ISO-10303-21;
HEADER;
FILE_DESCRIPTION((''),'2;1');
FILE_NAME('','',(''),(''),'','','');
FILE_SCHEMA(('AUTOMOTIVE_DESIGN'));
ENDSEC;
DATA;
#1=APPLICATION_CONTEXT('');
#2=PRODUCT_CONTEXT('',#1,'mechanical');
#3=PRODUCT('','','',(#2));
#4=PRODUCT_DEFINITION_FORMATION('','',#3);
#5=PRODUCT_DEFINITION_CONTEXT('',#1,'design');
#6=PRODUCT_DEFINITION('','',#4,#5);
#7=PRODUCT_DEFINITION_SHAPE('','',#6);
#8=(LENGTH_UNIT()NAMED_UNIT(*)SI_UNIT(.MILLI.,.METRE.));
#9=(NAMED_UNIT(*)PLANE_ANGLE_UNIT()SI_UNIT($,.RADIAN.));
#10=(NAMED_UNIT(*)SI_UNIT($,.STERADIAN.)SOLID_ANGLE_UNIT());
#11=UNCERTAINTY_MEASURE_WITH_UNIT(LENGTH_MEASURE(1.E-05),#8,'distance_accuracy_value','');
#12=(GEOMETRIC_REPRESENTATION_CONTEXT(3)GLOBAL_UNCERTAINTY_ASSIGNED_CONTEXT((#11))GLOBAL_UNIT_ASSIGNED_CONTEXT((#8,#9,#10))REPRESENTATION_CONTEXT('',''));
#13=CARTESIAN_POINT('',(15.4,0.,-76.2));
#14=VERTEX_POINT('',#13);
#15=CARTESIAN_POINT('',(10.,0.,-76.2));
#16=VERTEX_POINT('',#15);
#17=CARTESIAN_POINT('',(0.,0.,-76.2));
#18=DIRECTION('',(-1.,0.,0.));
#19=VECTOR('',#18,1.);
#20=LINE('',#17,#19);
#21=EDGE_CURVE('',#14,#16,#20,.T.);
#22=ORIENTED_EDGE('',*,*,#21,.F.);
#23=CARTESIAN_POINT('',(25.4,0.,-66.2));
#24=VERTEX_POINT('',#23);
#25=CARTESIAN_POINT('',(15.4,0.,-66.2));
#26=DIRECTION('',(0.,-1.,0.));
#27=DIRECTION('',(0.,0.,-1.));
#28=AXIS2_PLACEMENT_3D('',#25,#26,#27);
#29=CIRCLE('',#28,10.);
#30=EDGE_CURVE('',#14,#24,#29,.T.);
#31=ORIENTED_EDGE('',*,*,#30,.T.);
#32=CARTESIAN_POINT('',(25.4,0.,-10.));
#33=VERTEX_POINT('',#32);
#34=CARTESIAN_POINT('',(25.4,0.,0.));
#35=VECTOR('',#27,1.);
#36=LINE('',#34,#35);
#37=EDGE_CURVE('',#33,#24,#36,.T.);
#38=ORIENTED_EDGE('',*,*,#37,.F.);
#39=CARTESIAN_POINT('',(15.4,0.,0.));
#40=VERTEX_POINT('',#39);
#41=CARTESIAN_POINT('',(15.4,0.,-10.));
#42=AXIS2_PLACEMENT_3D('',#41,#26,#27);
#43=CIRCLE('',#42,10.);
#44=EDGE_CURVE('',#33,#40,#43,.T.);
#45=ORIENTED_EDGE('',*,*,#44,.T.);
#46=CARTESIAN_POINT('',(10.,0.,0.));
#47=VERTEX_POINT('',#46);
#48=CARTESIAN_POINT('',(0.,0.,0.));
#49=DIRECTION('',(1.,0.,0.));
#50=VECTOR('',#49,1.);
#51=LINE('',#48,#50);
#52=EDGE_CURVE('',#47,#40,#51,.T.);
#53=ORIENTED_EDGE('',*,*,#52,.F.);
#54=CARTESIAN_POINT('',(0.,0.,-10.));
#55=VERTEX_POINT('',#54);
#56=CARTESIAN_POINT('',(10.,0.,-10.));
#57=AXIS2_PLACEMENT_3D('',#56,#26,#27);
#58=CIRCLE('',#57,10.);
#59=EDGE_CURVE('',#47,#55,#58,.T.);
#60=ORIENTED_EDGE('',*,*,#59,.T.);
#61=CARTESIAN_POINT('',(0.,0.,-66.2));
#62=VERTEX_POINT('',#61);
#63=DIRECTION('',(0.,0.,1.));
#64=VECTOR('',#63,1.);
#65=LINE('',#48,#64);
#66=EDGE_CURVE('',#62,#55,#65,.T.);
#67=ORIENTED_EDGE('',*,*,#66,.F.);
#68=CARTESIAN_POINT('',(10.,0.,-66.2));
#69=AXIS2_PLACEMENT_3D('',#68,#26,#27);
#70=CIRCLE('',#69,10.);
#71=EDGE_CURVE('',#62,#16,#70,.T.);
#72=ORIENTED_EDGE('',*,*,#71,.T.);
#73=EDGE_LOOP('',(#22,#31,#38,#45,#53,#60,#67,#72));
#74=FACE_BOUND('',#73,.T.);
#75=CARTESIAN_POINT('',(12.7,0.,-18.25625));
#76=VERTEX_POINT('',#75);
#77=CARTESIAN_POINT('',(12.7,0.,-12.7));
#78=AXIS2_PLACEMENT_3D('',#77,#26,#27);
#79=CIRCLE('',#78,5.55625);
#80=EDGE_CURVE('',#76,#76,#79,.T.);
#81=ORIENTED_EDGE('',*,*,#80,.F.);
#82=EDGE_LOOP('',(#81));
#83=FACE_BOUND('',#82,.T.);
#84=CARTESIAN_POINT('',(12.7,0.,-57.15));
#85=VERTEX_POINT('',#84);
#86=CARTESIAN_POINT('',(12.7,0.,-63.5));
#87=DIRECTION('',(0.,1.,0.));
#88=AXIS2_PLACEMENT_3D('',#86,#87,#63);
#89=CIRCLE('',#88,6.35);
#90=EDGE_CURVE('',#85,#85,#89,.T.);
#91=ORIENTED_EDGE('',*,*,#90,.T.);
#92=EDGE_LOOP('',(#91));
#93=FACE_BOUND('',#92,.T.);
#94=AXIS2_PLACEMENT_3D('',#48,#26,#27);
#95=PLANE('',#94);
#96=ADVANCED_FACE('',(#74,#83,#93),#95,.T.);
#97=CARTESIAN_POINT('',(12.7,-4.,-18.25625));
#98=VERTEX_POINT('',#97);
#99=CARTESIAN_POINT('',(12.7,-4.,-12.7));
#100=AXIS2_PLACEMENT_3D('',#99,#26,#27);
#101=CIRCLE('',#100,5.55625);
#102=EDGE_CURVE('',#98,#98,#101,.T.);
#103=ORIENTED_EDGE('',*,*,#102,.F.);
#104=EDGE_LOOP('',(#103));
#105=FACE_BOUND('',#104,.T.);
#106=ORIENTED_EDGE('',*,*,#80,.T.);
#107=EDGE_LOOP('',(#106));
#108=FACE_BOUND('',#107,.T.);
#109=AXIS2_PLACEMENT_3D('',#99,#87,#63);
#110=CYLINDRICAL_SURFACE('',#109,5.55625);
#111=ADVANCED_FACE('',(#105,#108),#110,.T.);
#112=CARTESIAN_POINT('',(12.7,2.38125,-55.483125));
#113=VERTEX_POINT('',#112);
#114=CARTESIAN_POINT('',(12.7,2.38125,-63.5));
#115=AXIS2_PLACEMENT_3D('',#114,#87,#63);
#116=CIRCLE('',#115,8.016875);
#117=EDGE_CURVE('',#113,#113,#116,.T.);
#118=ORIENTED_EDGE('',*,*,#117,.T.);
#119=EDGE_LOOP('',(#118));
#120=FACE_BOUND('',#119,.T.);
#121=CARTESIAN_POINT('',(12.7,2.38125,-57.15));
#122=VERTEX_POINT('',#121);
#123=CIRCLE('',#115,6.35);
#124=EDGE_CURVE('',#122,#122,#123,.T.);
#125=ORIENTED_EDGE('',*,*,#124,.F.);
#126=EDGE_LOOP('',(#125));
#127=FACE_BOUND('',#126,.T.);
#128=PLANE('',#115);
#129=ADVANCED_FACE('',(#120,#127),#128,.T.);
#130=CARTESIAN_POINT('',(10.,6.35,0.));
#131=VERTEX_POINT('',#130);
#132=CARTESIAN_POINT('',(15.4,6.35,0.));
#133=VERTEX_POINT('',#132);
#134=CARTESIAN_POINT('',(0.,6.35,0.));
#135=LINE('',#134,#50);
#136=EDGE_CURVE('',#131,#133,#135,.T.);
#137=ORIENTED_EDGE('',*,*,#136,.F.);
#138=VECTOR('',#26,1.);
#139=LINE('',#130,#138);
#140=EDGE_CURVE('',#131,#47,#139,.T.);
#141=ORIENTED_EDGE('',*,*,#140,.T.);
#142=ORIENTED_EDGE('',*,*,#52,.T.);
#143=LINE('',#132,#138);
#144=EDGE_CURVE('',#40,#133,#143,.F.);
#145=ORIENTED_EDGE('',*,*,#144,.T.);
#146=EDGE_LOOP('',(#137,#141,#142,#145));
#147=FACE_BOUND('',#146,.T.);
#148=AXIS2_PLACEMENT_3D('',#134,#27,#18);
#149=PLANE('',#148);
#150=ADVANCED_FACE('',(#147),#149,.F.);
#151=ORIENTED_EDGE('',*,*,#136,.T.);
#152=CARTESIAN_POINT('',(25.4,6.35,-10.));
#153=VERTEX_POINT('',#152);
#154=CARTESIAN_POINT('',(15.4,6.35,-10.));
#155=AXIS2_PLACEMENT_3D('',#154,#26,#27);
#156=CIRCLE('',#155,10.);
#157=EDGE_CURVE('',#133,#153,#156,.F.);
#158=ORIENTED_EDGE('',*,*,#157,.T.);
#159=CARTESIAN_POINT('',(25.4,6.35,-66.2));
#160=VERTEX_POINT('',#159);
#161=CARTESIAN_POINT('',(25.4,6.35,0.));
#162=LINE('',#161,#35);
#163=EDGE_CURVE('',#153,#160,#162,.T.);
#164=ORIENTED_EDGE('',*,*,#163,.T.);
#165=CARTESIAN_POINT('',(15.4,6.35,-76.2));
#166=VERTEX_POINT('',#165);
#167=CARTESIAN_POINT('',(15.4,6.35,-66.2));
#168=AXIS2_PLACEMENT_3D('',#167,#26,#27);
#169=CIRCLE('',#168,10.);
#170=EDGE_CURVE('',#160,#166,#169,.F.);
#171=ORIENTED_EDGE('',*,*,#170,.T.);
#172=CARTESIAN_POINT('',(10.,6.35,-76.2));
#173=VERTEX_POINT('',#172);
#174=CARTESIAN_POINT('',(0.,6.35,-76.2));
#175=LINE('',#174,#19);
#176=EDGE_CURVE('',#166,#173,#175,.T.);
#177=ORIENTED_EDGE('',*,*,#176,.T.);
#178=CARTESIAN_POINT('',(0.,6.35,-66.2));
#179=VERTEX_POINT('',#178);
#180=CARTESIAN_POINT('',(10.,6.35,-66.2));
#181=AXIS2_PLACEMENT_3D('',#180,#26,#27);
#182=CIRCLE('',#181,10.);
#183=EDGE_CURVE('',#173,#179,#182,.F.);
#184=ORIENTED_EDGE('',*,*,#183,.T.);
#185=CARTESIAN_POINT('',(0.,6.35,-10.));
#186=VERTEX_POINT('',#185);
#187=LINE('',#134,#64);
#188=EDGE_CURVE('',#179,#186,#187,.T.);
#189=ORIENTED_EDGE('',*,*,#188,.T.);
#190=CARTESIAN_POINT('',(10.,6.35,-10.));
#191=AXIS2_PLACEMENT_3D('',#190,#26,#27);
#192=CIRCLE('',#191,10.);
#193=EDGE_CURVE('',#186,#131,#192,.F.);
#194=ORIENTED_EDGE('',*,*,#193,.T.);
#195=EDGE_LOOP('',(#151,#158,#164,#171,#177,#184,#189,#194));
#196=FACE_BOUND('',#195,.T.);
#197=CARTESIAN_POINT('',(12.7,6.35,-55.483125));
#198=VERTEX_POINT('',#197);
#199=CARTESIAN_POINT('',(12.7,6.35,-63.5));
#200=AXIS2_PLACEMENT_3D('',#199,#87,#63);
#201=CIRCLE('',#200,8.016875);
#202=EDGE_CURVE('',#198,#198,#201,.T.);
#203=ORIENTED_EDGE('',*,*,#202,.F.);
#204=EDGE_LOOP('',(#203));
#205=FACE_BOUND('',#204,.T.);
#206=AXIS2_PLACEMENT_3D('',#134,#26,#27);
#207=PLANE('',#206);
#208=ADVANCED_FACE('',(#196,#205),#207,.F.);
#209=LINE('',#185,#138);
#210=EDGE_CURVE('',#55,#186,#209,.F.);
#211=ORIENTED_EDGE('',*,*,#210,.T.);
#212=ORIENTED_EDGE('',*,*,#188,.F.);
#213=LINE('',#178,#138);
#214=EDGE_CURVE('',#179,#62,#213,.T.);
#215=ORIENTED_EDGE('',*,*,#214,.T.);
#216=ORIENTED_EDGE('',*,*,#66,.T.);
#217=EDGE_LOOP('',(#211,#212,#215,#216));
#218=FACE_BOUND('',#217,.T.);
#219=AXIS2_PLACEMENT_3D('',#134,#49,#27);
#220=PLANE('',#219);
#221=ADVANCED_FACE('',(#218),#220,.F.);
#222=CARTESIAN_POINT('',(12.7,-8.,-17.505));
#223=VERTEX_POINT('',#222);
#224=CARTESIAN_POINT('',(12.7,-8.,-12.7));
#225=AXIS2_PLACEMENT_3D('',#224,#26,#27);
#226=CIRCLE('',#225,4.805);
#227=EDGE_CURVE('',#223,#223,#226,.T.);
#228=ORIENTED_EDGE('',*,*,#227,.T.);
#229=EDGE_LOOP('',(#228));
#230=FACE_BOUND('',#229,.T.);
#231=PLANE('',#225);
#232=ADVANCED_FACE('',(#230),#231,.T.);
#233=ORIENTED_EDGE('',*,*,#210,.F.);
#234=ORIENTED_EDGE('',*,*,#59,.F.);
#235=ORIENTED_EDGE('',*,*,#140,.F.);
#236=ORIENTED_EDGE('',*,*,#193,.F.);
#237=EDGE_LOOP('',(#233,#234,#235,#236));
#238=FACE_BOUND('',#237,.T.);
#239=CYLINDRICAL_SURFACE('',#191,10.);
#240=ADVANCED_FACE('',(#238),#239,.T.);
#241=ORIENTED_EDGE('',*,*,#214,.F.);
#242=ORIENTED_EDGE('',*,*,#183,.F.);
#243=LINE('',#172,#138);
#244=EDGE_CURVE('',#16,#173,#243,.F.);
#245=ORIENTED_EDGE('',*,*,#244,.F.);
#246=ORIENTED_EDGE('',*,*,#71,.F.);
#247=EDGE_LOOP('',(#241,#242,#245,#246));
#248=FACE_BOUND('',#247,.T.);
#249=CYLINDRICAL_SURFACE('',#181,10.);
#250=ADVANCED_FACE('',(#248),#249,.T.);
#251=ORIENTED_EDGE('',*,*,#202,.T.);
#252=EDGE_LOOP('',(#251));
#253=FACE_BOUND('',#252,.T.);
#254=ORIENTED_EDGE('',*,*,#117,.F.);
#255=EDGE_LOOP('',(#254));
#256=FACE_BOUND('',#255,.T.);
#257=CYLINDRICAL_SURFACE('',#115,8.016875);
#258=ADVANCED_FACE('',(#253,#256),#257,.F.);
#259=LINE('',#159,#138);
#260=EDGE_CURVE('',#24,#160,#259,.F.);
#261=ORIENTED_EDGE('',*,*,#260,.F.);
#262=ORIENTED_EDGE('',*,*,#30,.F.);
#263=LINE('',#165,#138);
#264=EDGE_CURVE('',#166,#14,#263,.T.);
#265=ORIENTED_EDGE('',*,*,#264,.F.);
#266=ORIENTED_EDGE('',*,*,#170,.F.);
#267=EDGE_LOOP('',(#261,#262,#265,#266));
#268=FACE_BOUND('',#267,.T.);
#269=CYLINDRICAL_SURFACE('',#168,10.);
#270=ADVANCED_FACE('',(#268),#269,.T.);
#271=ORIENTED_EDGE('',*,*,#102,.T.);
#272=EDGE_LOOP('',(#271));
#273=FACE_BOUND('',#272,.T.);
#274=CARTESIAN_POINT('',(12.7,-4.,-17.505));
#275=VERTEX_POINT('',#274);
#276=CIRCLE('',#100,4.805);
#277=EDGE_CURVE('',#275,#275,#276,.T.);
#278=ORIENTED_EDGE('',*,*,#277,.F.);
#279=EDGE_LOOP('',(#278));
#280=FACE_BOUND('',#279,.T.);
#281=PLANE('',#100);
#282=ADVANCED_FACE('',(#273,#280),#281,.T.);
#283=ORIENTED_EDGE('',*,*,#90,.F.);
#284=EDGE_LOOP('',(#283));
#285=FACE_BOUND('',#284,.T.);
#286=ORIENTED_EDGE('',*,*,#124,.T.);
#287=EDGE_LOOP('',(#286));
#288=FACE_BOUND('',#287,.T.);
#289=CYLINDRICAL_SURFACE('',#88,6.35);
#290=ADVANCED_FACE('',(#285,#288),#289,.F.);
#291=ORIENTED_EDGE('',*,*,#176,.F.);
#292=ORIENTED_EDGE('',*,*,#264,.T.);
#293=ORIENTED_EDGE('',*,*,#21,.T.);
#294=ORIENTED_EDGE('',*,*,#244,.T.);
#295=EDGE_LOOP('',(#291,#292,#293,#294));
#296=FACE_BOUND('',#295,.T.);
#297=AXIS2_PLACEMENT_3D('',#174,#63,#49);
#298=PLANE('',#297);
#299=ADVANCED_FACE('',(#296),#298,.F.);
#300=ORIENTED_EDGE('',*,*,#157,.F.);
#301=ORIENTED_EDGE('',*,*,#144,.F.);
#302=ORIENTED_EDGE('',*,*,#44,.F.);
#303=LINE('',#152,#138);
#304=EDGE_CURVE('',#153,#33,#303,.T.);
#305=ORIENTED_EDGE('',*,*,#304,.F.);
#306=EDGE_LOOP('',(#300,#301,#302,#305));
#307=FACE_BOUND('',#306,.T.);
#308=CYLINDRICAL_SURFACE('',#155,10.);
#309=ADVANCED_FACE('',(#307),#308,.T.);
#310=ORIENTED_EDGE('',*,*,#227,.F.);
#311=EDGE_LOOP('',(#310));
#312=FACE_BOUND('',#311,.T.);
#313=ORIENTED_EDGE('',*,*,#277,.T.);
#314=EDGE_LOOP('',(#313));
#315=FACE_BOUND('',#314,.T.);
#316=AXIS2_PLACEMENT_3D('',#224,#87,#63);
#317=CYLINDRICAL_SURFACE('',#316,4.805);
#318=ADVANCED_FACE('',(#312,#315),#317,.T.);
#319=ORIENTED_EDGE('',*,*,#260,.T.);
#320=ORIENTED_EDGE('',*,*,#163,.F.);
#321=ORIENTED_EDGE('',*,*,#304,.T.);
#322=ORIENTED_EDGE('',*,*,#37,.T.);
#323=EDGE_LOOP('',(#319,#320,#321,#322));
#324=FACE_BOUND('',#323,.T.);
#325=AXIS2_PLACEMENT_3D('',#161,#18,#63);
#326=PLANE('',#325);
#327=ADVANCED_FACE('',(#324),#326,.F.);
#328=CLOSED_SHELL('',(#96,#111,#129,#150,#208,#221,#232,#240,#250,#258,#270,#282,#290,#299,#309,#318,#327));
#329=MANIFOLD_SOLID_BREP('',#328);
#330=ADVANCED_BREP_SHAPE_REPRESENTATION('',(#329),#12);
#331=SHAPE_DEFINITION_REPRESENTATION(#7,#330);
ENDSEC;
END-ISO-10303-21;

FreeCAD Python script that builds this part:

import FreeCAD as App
import Part
import Sketcher
from FreeCAD import Vector
Q = App.Units.Quantity


def edges_at(feature, points):
    """Names of the edges that pass closest to the given points."""
    edges = feature.Shape.Edges
    near = lambda p: min(range(len(edges)), key=lambda i: edges[i].distToShape(Part.Vertex(*p))[0])
    return sorted({f"Edge{near(p) + 1}" for p in points})

doc = App.newDocument("Part")
body = doc.addObject("PartDesign::Body", "Body")

# Sketch on XZ plane
sketch1 = body.newObject("Sketcher::SketchObject", "Sketch")
sketch1.AttachmentSupport = (doc.getObject("XZ_Plane"), [""])
sketch1.MapMode = "FlatFace"
sketch1.addGeometry([
    Part.LineSegment(Vector(0, -76, 0), Vector(0, 0, 0)),
    Part.LineSegment(Vector(0, 0, 0), Vector(25, 0, 0)),
    Part.LineSegment(Vector(25, 0, 0), Vector(25, -76, 0)),
    Part.LineSegment(Vector(25, -76, 0), Vector(0, -76, 0)),
], False)
sketch1.addConstraint([
    Sketcher.Constraint("Coincident", 0, 2, 1, 1),
    Sketcher.Constraint("Coincident", 1, 2, 2, 1),
    Sketcher.Constraint("Coincident", 2, 2, 3, 1),
    Sketcher.Constraint("Coincident", 3, 2, 0, 1),
    Sketcher.Constraint("Vertical", 0),
    Sketcher.Constraint("Horizontal", 1),
    Sketcher.Constraint("Vertical", 2),
    Sketcher.Constraint("Horizontal", 3),
    Sketcher.Constraint("Coincident", 0, 2, -1, 1),
    Sketcher.Constraint("DistanceX", 1, 1, 1, 2, Q("1 in")),
    Sketcher.Constraint("DistanceY", 0, 1, 0, 2, Q("3 in")),
])
pad1 = body.newObject("PartDesign::Pad", "Pad")
pad1.Profile = sketch1
pad1.Length = Q("0.25 in")
pad1.Reversed = True

# Sketch on XZ plane
sketch2 = body.newObject("Sketcher::SketchObject", "Sketch001")
sketch2.AttachmentSupport = (doc.getObject("XZ_Plane"), [""])
sketch2.MapMode = "FlatFace"
sketch2.AttachmentOffset = App.Placement(Vector(0, 0, -0.25 * 25.4), App.Rotation())
sketch2.addGeometry(Part.Circle(Vector(13, -64, 0), Vector(0, 0, 1), 8), False)
sketch2.addConstraint([
    Sketcher.Constraint("DistanceX", -1, 1, 0, 3, Q("0.5 in")),
    Sketcher.Constraint("DistanceY", 0, 3, -1, 1, Q("2.5 in")),
    Sketcher.Constraint("Diameter", 0, 16.03375),
])
pocket1 = body.newObject("PartDesign::Pocket", "Pocket")
pocket1.Profile = sketch2
pocket1.Length = Q("0.15625 in")
pocket1.Reversed = True

# Sketch on XZ plane
sketch3 = body.newObject("Sketcher::SketchObject", "Sketch002")
sketch3.AttachmentSupport = (doc.getObject("XZ_Plane"), [""])
sketch3.MapMode = "FlatFace"
sketch3.AttachmentOffset = App.Placement(Vector(0, 0, -0.09375 * 25.4), App.Rotation())
sketch3.addGeometry(Part.Circle(Vector(13, -64, 0), Vector(0, 0, 1), 6), False)
sketch3.addConstraint([
    Sketcher.Constraint("Diameter", 0, Q("0.5 in")),
    Sketcher.Constraint("DistanceX", -1, 1, 0, 3, Q("0.5 in")),
    Sketcher.Constraint("DistanceY", 0, 3, -1, 1, Q("2.5 in")),
])
pocket2 = body.newObject("PartDesign::Pocket", "Pocket001")
pocket2.Profile = sketch3
pocket2.Type = "ThroughAll"
pocket2.Reversed = True

# Sketch on XZ plane
sketch4 = body.newObject("Sketcher::SketchObject", "Sketch003")
sketch4.AttachmentSupport = (doc.getObject("XZ_Plane"), [""])
sketch4.MapMode = "FlatFace"
sketch4.addGeometry(Part.Circle(Vector(13, -13, 0), Vector(0, 0, 1), 6), False)
sketch4.addConstraint([
    Sketcher.Constraint("Diameter", 0, Q("0.4375 in")),
    Sketcher.Constraint("DistanceX", -1, 1, 0, 3, Q("0.5 in")),
    Sketcher.Constraint("DistanceY", 0, 3, -1, 1, Q("0.5 in")),
])
pad2 = body.newObject("PartDesign::Pad", "Pad001")
pad2.Profile = sketch4
pad2.Length = 4

# Sketch on XZ plane
sketch5 = body.newObject("Sketcher::SketchObject", "Sketch004")
sketch5.AttachmentSupport = (doc.getObject("XZ_Plane"), [""])
sketch5.MapMode = "FlatFace"
sketch5.AttachmentOffset = App.Placement(Vector(0, 0, 4), App.Rotation())
sketch5.addGeometry(Part.Circle(Vector(12.7, -12.7, 0), Vector(0, 0, 1), 4.8), False)
sketch5.addConstraint([
    Sketcher.Constraint("DistanceX", -1, 1, 0, 3, Q("0.5 in")),
    Sketcher.Constraint("DistanceY", 0, 3, -1, 1, Q("0.5 in")),
    Sketcher.Constraint("Diameter", 0, 9.61),
])
pad3 = body.newObject("PartDesign::Pad", "Pad002")
pad3.Profile = sketch5
pad3.Length = 4
doc.recompute()

fillet = body.newObject("PartDesign::Fillet", "Fillet")
fillet.Base = (pad3, edges_at(pad3, [
    (0, 3.175, -76.2),
    (25.4, 3.175, -76.2),
    (25.4, 3.175, 0),
    (0, 3.175, 0),
]))
fillet.Radius = 10

doc.recompute()
